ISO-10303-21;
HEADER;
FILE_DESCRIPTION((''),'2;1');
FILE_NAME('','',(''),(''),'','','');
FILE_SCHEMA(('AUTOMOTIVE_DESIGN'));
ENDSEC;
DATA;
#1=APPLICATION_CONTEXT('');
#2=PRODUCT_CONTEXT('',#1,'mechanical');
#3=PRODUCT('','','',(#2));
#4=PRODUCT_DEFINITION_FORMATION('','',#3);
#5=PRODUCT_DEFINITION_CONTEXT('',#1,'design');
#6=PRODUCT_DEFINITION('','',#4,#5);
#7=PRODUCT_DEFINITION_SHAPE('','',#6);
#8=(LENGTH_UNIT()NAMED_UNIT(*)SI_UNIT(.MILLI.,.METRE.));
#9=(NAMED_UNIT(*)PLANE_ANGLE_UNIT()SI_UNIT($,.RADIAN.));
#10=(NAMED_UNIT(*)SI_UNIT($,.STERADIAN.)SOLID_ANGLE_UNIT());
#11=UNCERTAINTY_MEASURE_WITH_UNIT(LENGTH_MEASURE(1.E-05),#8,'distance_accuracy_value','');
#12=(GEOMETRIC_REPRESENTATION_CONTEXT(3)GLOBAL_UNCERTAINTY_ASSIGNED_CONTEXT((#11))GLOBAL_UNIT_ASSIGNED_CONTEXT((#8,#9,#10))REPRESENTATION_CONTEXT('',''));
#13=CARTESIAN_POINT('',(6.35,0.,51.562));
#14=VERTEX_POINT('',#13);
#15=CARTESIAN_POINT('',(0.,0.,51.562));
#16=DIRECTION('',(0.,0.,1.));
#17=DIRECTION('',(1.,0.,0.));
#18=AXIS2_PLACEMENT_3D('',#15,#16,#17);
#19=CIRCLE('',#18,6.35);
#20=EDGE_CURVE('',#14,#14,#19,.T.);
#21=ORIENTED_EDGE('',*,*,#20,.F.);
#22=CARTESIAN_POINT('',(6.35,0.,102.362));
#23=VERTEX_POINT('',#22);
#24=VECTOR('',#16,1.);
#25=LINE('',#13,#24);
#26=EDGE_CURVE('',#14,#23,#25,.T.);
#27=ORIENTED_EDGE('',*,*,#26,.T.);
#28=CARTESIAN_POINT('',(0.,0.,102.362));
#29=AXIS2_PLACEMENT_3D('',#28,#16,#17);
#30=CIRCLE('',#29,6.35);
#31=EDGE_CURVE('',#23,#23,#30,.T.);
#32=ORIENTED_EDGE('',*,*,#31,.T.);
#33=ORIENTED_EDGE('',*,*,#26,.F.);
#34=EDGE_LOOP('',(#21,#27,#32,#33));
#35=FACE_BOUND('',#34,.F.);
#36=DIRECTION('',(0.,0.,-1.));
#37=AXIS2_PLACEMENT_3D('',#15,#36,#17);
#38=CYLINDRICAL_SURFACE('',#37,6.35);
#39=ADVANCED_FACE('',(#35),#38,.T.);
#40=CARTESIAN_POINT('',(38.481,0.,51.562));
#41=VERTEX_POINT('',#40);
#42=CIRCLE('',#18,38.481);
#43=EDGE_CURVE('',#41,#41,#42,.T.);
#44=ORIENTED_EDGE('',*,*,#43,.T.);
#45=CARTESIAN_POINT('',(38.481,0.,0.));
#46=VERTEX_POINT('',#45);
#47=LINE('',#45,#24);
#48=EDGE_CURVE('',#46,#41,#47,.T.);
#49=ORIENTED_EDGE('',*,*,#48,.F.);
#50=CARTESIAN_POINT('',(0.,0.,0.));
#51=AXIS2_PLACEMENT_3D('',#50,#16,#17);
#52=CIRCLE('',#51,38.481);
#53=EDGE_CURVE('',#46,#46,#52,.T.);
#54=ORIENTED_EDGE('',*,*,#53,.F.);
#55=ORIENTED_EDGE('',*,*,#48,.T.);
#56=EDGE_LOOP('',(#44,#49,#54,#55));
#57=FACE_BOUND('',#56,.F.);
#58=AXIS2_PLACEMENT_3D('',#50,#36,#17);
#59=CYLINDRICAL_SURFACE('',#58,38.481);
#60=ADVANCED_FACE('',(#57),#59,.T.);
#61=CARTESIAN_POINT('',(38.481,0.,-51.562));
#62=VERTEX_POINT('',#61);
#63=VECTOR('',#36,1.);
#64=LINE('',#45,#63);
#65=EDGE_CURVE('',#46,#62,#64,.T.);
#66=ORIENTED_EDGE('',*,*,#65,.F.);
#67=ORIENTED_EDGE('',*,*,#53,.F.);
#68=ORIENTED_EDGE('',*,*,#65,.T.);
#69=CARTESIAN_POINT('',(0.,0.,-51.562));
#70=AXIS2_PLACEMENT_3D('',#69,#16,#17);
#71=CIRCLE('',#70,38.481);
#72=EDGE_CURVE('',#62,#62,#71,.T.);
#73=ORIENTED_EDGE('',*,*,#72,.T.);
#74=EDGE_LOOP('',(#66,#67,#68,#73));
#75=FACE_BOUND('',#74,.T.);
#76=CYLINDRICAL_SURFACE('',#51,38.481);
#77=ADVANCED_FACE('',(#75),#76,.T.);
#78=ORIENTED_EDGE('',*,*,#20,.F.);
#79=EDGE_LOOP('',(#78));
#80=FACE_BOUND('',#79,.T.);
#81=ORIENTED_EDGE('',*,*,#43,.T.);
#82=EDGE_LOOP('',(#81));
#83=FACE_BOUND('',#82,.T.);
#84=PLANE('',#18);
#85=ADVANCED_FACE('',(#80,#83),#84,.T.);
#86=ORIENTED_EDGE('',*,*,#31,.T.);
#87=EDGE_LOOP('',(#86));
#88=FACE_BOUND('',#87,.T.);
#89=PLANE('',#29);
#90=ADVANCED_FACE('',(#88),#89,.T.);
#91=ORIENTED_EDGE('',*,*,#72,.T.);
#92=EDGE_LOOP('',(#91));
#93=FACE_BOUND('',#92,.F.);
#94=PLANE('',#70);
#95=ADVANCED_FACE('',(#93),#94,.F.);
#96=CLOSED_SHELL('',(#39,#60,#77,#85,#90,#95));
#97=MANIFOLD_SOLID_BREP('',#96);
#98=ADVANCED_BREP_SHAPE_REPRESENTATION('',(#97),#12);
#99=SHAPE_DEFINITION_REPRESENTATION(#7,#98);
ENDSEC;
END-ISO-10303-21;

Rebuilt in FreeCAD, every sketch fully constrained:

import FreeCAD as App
import Part
import Sketcher
from FreeCAD import Vector
Q = App.Units.Quantity

doc = App.newDocument("Part")
params = doc.addObject("Spreadsheet::Sheet", "Params")
for row, (alias, value) in enumerate([
    ("sketch1_diameter", "3.03 in"),
    ("pad1_length", "4.06 in"),
    ("sketch2_diameter", "0.5 in"),
    ("pad2_length", "2 in"),
], start=1):
    params.set(f"A{row}", alias)
    params.set(f"B{row}", "=" + value)
    params.setAlias(f"B{row}", alias)

body = doc.addObject("PartDesign::Body", "Body")

sketch1 = body.newObject("Sketcher::SketchObject", "Sketch")
sketch1.AttachmentSupport = (doc.getObject("XY_Plane"), [""])
sketch1.MapMode = "FlatFace"
sketch1.addGeometry(Part.Circle(Vector(0, 0, 0), Vector(0, 0, 1), 38), False)
sketch1.addConstraint([
    Sketcher.Constraint("Coincident", 0, 3, -1, 1),
    Sketcher.Constraint("Diameter", 0, Q("3.03 in")),
])
sketch1.setExpression("Constraints[1]", "Params.sketch1_diameter")
pad1 = body.newObject("PartDesign::Pad", "Pad")
pad1.Profile = sketch1
pad1.setExpression("Length", "Params.pad1_length")
pad1.Midplane = True

sketch2 = body.newObject("Sketcher::SketchObject", "Sketch001")
sketch2.AttachmentSupport = (doc.getObject("XY_Plane"), [""])
sketch2.MapMode = "FlatFace"
sketch2.AttachmentOffset = App.Placement(Vector(0, 0, 2.03 * 25.4), App.Rotation())
sketch2.addGeometry(Part.Circle(Vector(0, 0, 0), Vector(0, 0, 1), 6), False)
sketch2.addConstraint([
    Sketcher.Constraint("Coincident", 0, 3, -1, 1),
    Sketcher.Constraint("Diameter", 0, Q("0.5 in")),
])
sketch2.setExpression("Constraints[1]", "Params.sketch2_diameter")
pad2 = body.newObject("PartDesign::Pad", "Pad001")
pad2.Profile = sketch2
pad2.setExpression("Length", "Params.pad2_length")

doc.recompute()
